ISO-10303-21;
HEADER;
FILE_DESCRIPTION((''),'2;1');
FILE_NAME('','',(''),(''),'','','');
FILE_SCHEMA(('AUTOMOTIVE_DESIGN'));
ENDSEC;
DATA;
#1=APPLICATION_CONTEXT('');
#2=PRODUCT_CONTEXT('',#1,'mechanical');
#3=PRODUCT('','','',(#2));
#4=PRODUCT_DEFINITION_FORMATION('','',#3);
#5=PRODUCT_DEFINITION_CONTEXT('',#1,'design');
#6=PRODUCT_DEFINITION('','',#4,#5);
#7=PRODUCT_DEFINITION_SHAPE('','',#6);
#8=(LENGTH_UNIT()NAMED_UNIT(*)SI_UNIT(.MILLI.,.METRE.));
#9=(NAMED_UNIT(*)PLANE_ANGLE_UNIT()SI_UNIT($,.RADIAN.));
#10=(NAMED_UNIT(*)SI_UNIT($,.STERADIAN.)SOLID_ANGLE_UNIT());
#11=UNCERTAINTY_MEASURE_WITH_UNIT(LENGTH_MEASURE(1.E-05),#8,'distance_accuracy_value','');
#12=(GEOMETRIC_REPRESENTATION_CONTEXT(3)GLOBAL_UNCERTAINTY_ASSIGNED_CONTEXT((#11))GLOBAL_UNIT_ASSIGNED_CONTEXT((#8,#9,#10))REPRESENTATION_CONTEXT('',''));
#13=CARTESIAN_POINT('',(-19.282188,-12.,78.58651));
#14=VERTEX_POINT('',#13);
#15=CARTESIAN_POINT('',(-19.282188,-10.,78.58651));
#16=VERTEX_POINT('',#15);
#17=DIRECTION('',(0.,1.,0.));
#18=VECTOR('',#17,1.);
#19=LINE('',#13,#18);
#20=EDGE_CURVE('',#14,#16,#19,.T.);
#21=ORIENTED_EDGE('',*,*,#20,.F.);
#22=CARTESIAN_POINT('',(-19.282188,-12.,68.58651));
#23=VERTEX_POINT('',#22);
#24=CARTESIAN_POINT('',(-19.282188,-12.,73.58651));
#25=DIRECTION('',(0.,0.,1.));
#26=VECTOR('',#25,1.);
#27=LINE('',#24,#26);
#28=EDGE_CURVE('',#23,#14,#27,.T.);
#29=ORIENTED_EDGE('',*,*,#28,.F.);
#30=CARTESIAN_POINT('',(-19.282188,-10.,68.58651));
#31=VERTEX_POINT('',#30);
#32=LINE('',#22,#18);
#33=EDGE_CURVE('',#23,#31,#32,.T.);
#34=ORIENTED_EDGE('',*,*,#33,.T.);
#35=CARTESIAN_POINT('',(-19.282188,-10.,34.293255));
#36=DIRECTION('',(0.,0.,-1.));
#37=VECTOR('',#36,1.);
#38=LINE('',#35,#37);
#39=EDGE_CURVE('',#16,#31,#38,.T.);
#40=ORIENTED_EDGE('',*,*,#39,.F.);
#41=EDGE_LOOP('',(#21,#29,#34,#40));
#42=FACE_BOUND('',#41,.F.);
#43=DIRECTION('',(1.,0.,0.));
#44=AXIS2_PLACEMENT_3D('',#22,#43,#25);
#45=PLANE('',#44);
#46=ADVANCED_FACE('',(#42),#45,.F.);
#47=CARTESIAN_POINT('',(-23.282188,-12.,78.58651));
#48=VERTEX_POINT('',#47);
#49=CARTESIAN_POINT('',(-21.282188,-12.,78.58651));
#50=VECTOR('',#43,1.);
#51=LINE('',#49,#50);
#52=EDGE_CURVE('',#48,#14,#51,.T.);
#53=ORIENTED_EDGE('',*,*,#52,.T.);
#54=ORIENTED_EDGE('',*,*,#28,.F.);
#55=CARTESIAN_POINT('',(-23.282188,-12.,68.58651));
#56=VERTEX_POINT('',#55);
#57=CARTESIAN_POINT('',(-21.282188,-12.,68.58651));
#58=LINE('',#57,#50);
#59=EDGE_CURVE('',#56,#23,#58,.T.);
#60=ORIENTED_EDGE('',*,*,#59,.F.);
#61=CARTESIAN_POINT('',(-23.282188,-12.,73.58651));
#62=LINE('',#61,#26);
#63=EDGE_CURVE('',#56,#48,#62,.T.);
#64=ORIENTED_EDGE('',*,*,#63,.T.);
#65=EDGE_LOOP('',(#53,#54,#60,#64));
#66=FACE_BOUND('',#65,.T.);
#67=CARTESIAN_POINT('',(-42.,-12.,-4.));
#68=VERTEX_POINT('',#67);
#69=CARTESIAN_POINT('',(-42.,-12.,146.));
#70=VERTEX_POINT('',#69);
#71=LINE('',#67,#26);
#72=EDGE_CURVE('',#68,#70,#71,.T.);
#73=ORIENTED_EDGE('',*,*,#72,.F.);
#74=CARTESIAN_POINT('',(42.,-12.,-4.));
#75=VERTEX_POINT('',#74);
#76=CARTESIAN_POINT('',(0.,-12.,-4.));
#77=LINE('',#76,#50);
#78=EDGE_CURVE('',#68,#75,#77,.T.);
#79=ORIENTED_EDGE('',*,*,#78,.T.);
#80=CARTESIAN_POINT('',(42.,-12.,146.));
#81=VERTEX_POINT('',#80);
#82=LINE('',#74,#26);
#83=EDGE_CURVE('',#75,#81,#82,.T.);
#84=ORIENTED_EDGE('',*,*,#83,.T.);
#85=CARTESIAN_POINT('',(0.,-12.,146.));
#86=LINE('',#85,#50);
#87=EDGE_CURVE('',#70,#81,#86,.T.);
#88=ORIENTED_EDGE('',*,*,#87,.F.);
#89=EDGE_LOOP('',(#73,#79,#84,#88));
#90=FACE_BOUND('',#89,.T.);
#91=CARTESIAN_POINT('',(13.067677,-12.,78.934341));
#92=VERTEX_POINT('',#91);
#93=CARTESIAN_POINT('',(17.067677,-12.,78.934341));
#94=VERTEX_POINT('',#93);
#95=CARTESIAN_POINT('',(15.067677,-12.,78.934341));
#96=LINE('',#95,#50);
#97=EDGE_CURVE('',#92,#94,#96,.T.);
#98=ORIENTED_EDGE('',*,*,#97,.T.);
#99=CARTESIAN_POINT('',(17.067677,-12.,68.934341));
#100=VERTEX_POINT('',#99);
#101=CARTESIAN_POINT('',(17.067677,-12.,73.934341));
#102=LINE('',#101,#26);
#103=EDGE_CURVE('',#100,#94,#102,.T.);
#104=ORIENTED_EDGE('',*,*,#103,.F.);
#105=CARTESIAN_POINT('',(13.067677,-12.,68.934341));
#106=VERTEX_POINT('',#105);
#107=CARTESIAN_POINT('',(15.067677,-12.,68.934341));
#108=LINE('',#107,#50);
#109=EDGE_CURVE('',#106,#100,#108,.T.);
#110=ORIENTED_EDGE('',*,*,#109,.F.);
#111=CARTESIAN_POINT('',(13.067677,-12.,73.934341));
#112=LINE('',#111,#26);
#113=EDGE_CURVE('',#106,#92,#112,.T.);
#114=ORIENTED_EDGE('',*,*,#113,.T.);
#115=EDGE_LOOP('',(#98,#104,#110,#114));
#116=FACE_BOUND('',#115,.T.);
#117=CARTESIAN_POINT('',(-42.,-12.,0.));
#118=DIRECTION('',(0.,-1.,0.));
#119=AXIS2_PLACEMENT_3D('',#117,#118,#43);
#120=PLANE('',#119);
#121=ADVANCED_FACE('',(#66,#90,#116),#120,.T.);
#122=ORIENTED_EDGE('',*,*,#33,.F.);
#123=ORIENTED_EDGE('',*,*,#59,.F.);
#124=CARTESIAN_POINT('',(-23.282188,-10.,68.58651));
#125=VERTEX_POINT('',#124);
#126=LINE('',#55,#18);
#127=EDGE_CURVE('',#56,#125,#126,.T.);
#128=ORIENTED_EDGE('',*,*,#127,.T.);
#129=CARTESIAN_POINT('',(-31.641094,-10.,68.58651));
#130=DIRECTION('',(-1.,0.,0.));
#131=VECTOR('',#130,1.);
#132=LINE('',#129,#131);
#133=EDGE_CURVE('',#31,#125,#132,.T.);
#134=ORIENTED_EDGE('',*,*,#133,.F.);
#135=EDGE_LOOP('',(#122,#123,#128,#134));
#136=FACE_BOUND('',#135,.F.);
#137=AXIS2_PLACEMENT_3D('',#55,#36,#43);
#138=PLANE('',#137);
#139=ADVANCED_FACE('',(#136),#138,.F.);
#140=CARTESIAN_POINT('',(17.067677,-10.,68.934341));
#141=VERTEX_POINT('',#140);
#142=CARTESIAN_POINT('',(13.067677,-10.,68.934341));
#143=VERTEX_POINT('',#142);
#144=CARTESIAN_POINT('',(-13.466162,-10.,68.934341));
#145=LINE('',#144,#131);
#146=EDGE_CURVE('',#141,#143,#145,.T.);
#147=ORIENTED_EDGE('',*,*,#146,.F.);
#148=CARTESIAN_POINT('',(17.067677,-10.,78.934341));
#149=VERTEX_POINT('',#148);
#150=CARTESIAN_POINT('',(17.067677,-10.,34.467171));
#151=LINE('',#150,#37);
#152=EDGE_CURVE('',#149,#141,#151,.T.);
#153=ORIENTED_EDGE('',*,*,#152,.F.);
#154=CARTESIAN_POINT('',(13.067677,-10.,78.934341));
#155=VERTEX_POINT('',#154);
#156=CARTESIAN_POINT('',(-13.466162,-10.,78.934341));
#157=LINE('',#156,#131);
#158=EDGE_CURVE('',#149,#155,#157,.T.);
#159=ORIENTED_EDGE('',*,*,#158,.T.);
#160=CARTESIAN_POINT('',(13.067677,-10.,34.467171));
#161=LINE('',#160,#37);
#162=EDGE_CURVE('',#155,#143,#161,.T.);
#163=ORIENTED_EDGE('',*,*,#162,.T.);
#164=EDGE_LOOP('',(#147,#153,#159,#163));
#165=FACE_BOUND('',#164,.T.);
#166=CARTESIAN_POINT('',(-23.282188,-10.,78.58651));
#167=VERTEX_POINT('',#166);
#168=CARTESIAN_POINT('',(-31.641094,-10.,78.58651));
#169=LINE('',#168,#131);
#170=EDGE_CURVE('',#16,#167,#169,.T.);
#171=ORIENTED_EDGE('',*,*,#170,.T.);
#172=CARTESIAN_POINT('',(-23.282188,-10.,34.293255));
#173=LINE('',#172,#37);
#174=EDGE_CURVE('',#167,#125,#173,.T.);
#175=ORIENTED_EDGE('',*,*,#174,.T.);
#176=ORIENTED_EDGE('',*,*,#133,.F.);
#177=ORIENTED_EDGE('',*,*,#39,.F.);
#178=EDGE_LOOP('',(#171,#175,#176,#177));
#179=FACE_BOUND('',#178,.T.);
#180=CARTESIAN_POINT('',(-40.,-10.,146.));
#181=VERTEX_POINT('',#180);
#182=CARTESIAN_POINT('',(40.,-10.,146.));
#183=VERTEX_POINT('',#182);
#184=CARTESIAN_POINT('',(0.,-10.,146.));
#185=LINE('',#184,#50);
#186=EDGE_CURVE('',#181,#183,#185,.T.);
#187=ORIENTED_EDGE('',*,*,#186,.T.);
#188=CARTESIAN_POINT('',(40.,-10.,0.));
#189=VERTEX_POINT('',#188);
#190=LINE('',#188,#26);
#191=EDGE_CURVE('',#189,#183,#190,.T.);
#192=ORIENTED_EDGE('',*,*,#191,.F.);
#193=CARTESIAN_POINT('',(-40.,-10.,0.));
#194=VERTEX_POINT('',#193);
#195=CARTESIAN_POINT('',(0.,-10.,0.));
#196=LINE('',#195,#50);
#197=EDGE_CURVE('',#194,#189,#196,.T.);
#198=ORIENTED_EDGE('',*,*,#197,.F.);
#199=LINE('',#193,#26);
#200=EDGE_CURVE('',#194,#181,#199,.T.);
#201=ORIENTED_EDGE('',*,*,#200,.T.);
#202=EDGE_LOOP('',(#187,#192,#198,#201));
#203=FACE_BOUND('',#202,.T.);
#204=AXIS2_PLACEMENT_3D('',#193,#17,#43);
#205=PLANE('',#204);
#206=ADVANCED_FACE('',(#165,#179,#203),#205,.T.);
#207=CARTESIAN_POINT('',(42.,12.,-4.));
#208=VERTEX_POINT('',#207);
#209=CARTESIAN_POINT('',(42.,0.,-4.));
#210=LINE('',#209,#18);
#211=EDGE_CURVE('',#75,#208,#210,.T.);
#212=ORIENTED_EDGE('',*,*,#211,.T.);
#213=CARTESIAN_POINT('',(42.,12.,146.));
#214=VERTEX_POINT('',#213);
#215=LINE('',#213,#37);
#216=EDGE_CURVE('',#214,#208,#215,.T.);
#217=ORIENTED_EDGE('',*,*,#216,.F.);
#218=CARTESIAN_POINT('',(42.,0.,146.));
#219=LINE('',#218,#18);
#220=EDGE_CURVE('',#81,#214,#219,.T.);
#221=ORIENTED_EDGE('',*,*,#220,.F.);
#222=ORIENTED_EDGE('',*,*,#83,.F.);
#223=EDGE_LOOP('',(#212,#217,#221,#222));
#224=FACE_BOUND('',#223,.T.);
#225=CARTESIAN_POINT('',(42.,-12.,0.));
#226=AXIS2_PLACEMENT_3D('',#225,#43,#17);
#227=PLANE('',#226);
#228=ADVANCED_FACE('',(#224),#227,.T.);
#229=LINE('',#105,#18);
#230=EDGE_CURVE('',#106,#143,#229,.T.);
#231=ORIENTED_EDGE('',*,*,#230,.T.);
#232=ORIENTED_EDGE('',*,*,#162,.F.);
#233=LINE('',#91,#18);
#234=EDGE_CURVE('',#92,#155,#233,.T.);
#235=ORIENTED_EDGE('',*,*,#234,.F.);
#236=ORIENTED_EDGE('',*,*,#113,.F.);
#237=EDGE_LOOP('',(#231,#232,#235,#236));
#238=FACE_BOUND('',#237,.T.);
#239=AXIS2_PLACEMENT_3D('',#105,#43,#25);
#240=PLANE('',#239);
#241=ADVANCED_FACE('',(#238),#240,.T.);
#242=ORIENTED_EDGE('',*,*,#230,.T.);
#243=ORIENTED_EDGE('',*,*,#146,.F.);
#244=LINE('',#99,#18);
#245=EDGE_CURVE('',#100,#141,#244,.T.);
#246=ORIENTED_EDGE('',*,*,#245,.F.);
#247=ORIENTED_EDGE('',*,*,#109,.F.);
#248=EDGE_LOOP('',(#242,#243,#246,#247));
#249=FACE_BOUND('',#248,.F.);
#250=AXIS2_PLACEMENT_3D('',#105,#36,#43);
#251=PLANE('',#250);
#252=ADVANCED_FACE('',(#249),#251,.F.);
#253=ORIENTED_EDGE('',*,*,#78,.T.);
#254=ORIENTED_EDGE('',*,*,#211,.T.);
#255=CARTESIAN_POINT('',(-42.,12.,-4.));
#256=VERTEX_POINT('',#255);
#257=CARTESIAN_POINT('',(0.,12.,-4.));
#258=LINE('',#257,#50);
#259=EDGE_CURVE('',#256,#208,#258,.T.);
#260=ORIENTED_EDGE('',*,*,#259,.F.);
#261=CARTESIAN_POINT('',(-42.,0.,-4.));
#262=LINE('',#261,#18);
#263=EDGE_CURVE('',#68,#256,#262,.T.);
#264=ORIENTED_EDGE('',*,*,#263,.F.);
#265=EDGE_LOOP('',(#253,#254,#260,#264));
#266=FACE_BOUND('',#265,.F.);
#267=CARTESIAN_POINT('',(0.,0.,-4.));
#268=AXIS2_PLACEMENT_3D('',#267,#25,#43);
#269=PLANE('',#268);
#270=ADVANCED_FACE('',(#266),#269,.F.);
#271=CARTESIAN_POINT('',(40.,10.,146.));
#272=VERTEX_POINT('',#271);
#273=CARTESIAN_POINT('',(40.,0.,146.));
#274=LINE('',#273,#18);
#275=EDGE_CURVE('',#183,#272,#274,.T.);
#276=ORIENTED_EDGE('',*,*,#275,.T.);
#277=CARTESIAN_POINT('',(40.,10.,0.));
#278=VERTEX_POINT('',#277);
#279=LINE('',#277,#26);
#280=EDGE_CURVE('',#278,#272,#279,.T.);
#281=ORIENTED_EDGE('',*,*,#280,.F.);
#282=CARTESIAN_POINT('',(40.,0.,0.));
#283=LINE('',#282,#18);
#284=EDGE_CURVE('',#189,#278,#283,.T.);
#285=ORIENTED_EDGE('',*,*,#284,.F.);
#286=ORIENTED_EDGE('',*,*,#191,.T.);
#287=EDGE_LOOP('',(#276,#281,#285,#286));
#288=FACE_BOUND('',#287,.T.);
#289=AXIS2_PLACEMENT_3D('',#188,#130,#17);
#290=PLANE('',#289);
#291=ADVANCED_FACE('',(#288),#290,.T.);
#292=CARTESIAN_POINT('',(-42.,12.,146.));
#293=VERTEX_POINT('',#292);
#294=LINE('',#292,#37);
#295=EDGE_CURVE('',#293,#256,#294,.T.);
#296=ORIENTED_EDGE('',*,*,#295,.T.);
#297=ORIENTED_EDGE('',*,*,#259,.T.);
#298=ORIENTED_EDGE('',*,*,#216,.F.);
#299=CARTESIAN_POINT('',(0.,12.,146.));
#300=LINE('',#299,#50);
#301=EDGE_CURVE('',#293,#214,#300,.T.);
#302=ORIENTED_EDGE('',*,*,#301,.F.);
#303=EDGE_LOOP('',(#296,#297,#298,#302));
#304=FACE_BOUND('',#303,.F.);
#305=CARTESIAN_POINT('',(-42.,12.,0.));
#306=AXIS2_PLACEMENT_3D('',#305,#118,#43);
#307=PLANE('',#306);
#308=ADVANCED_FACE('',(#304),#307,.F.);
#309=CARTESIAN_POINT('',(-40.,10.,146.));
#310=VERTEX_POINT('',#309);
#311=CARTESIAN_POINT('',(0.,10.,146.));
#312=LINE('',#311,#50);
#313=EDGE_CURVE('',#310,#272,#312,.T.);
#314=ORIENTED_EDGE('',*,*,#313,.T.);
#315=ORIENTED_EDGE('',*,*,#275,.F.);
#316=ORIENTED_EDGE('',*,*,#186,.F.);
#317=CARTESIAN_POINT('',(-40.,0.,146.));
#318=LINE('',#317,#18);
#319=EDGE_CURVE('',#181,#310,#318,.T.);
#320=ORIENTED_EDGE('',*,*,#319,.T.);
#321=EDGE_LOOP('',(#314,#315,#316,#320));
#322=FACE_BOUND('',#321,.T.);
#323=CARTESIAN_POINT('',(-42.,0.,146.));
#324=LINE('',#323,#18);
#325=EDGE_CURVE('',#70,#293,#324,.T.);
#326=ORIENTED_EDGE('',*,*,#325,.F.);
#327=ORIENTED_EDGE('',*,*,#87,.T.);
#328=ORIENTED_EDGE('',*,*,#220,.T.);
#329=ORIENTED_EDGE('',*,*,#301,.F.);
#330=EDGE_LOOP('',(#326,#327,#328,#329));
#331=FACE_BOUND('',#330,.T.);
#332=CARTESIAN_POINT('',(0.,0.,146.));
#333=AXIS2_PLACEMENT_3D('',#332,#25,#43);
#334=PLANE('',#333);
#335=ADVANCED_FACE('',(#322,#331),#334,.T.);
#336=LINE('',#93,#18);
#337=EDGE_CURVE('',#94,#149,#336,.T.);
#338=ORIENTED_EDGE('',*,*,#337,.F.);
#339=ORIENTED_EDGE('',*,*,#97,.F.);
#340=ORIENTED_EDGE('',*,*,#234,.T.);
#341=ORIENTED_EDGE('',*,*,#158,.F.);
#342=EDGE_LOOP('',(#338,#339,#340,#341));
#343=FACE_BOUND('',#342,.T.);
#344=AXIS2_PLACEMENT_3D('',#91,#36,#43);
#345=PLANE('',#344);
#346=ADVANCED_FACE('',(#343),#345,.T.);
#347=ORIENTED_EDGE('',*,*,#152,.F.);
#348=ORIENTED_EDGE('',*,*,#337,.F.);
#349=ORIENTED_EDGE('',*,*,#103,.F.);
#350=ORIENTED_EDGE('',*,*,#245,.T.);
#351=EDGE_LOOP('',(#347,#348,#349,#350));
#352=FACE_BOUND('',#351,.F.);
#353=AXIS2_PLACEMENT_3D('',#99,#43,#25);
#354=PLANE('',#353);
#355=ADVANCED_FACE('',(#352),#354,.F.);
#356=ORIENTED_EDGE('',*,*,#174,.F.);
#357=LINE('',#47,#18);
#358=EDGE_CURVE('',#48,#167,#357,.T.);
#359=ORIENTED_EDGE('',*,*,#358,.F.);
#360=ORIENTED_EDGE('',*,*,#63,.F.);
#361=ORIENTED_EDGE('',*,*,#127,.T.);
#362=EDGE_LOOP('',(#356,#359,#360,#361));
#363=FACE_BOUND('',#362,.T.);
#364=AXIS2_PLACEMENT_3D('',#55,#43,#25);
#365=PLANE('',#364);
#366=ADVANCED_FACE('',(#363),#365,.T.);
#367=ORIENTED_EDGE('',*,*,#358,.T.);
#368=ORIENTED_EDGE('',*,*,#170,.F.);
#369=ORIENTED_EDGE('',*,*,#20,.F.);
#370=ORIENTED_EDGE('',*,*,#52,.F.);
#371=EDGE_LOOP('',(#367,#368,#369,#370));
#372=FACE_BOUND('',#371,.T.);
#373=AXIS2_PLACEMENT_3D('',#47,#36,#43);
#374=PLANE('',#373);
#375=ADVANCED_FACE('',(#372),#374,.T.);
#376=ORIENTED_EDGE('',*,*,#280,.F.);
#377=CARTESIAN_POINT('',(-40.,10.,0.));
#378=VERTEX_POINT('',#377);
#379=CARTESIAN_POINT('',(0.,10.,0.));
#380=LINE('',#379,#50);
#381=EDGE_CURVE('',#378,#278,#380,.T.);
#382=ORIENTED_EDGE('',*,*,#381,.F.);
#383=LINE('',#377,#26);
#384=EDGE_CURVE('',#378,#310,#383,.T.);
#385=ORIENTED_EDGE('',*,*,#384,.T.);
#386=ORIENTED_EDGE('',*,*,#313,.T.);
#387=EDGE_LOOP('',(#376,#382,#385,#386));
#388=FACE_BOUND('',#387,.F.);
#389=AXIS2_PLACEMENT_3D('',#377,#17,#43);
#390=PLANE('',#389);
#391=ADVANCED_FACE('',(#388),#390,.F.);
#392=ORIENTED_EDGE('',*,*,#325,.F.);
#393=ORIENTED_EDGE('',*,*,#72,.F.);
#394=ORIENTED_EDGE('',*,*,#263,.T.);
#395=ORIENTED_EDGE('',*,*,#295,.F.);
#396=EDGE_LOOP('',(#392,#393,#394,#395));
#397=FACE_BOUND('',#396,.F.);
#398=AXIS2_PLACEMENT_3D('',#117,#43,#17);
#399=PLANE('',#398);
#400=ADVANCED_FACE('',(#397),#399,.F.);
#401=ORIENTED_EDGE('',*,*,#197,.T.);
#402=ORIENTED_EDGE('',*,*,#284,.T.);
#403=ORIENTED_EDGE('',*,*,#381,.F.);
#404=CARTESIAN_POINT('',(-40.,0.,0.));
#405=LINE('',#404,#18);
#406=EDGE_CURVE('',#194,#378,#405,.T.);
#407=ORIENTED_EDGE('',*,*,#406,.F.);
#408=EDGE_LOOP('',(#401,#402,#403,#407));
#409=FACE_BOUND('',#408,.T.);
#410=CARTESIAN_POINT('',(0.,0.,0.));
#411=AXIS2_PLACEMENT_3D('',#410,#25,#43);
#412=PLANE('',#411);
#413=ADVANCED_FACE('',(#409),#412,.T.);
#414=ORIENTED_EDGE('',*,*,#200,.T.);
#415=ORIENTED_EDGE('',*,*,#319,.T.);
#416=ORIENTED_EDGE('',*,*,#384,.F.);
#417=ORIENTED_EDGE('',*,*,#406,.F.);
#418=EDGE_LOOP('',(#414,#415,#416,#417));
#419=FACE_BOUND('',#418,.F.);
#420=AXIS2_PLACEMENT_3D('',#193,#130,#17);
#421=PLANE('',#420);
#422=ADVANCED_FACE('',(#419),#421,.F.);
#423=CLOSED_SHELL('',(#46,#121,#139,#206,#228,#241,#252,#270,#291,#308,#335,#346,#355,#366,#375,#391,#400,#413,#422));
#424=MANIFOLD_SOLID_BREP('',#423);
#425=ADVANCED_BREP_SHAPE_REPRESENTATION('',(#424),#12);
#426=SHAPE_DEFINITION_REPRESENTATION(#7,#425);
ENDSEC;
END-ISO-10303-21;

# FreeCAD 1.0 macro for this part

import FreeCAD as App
import Part
import Sketcher
Q = App.Units.Quantity


def add_polygon(sketch, points):
    """Adds a closed chain of lines whose ends are joined by coincident constraints."""
    first, n = sketch.GeometryCount, len(points)
    for a, b in zip(points, points[1:] + points[:1]):
        sketch.addGeometry(Part.LineSegment(App.Vector(*a, 0), App.Vector(*b, 0)), False)
    for i in range(n):
        sketch.addConstraint(Sketcher.Constraint("Coincident", first + i, 2, first + (i + 1) % n, 1))

doc = App.newDocument("Part")
body = doc.addObject("PartDesign::Body", "Body")

# Sketch on XY plane
sketch1 = body.newObject("Sketcher::SketchObject", "Sketch")
sketch1.AttachmentSupport = (doc.getObject("XY_Plane"), [""])
sketch1.MapMode = "FlatFace"
add_polygon(sketch1, [(-42, 12), (-42, -12), (42, -12), (42, 12)])  # lines 0-3
sketch1.addConstraint(Sketcher.Constraint("Vertical", 0))
sketch1.addConstraint(Sketcher.Constraint("Horizontal", 1))
sketch1.addConstraint(Sketcher.Constraint("Vertical", 2))
sketch1.addConstraint(Sketcher.Constraint("Horizontal", 3))
sketch1.addConstraint(Sketcher.Constraint("Symmetric", 0, 2, 2, 2, -1, 1))
sketch1.addConstraint(Sketcher.Constraint("DistanceX", 1, 1, 1, 2, Q("84 mm")))
sketch1.addConstraint(Sketcher.Constraint("DistanceY", 0, 2, 0, 1, Q("24 mm")))
pad1 = body.newObject("PartDesign::Pad", "Pad")
pad1.Profile = sketch1
pad1.Length = 146

# Sketch on XY plane
sketch2 = body.newObject("Sketcher::SketchObject", "Sketch001")
sketch2.AttachmentSupport = (doc.getObject("XY_Plane"), [""])
sketch2.MapMode = "FlatFace"
add_polygon(sketch2, [(-42, 12), (-42, -12), (42, -12), (42, 12)])  # lines 0-3
sketch2.addConstraint(Sketcher.Constraint("Vertical", 0))
sketch2.addConstraint(Sketcher.Constraint("Horizontal", 1))
sketch2.addConstraint(Sketcher.Constraint("Vertical", 2))
sketch2.addConstraint(Sketcher.Constraint("Horizontal", 3))
sketch2.addConstraint(Sketcher.Constraint("Symmetric", 0, 2, 2, 2, -1, 1))
sketch2.addConstraint(Sketcher.Constraint("DistanceX", 1, 1, 1, 2, Q("84 mm")))
sketch2.addConstraint(Sketcher.Constraint("DistanceY", 0, 2, 0, 1, Q("24 mm")))
pad2 = body.newObject("PartDesign::Pad", "Pad001")
pad2.Profile = sketch2
pad2.Length = 4
pad2.Reversed = True

# Sketch on XY plane
sketch3 = body.newObject("Sketcher::SketchObject", "Sketch002")
sketch3.AttachmentSupport = (doc.getObject("XY_Plane"), [""])
sketch3.MapMode = "FlatFace"
add_polygon(sketch3, [(-40, 10), (-40, -10), (40, -10), (40, 10)])  # lines 0-3
sketch3.addConstraint(Sketcher.Constraint("Vertical", 0))
sketch3.addConstraint(Sketcher.Constraint("Horizontal", 1))
sketch3.addConstraint(Sketcher.Constraint("Vertical", 2))
sketch3.addConstraint(Sketcher.Constraint("Horizontal", 3))
sketch3.addConstraint(Sketcher.Constraint("Symmetric", 0, 2, 2, 2, -1, 1))
sketch3.addConstraint(Sketcher.Constraint("DistanceX", 1, 1, 1, 2, Q("80 mm")))
sketch3.addConstraint(Sketcher.Constraint("DistanceY", 0, 2, 0, 1, Q("20 mm")))
pocket1 = body.newObject("PartDesign::Pocket", "Pocket")
pocket1.Profile = sketch3
pocket1.Length = 146
pocket1.Reversed = True

# Sketch on XZ plane
sketch4 = body.newObject("Sketcher::SketchObject", "Sketch003")
sketch4.AttachmentSupport = (doc.getObject("XZ_Plane"), [""])
sketch4.MapMode = "FlatFace"
sketch4.AttachmentOffset = App.Placement(App.Vector(0, 0, 12), App.Rotation())
add_polygon(sketch4, [(-23.3, 78.6), (-23.3, 68.6), (-19.3, 68.6), (-19.3, 78.6)])  # lines 0-3
add_polygon(sketch4, [(13.1, 78.9), (13.1, 68.9), (17.1, 68.9), (17.1, 78.9)])  # lines 4-7
sketch4.addConstraint(Sketcher.Constraint("Vertical", 0))
sketch4.addConstraint(Sketcher.Constraint("Horizontal", 1))
sketch4.addConstraint(Sketcher.Constraint("Vertical", 2))
sketch4.addConstraint(Sketcher.Constraint("Horizontal", 3))
sketch4.addConstraint(Sketcher.Constraint("Vertical", 4))
sketch4.addConstraint(Sketcher.Constraint("Horizontal", 5))
sketch4.addConstraint(Sketcher.Constraint("Vertical", 6))
sketch4.addConstraint(Sketcher.Constraint("Horizontal", 7))
sketch4.addConstraint(Sketcher.Constraint("Equal", 3, 5))
sketch4.addConstraint(Sketcher.Constraint("Equal", 2, 4))
sketch4.addConstraint(Sketcher.Constraint("DistanceX", 1, 1, 1, 2, Q("4 mm")))
sketch4.addConstraint(Sketcher.Constraint("DistanceY", 0, 2, 0, 1, Q("10 mm")))
sketch4.addConstraint(Sketcher.Constraint("DistanceX", 0, 2, -1, 1, Q("23.282188 mm")))
sketch4.addConstraint(Sketcher.Constraint("DistanceY", -1, 1, 0, 2, Q("68.58651 mm")))
sketch4.addConstraint(Sketcher.Constraint("DistanceY", -1, 1, 4, 2, Q("68.934341 mm")))
sketch4.addConstraint(Sketcher.Constraint("DistanceX", -1, 1, 4, 2, Q("13.067677 mm")))
pocket2 = body.newObject("PartDesign::Pocket", "Pocket001")
pocket2.Profile = sketch4
pocket2.Length = 3.9

doc.recompute()
